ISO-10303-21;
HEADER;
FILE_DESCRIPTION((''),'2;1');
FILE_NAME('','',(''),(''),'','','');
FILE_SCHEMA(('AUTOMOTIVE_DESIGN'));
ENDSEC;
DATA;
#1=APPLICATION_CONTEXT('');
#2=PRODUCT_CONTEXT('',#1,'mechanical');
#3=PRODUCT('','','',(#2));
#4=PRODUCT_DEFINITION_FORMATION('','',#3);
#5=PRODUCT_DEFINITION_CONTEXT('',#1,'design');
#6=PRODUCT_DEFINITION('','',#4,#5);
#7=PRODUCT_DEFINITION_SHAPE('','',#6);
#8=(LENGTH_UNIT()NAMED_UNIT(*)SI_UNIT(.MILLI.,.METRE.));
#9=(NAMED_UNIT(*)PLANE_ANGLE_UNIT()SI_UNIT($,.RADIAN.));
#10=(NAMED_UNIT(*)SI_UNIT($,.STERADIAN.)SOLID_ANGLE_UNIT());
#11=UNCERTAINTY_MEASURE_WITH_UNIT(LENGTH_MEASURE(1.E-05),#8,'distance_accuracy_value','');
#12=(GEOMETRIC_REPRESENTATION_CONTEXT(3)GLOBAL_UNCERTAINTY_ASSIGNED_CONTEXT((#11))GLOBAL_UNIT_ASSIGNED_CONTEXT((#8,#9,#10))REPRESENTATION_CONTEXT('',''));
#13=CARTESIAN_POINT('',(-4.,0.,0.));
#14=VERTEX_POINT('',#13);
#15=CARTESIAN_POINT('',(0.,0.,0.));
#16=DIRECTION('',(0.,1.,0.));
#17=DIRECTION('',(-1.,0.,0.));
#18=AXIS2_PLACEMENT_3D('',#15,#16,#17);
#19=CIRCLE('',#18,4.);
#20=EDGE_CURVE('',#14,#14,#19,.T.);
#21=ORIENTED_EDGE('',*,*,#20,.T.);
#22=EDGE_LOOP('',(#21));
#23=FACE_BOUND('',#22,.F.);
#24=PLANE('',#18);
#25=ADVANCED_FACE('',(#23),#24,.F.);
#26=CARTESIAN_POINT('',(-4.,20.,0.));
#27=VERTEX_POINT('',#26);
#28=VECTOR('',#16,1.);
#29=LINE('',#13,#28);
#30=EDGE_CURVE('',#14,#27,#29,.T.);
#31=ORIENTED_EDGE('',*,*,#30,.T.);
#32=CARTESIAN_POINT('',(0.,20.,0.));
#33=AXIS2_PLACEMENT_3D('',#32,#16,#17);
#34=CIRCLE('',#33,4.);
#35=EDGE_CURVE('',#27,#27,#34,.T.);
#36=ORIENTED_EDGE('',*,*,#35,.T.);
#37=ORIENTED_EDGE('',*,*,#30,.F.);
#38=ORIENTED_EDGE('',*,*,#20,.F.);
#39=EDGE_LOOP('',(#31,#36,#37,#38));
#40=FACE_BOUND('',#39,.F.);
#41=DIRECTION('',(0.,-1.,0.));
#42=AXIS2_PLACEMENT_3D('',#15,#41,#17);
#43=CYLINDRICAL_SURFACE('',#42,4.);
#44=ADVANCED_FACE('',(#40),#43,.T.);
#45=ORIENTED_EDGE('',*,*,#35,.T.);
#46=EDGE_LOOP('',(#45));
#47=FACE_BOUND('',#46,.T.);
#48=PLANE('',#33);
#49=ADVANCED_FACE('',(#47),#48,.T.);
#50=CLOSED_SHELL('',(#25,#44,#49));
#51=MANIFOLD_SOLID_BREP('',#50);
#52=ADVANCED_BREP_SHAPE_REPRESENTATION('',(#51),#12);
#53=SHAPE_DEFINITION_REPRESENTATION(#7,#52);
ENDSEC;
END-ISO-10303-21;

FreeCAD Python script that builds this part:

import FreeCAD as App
import Part
import Sketcher
Q = App.Units.Quantity

doc = App.newDocument("Part")
body = doc.addObject("PartDesign::Body", "Body")

# Sketch on XZ plane
sketch1 = body.newObject("Sketcher::SketchObject", "Sketch")
sketch1.AttachmentSupport = (doc.getObject("XZ_Plane"), [""])
sketch1.MapMode = "FlatFace"
sketch1.addGeometry(Part.Circle(App.Vector(0, 0, 0), App.Vector(0, 0, 1), 4), False)
sketch1.addConstraint([
    Sketcher.Constraint("Coincident", 0, 3, -1, 1),
    Sketcher.Constraint("Diameter", 0, Q("8 mm")),
])
pad1 = body.newObject("PartDesign::Pad", "Pad")
pad1.Profile = sketch1
pad1.Length = 20
pad1.Reversed = True

doc.recompute()
